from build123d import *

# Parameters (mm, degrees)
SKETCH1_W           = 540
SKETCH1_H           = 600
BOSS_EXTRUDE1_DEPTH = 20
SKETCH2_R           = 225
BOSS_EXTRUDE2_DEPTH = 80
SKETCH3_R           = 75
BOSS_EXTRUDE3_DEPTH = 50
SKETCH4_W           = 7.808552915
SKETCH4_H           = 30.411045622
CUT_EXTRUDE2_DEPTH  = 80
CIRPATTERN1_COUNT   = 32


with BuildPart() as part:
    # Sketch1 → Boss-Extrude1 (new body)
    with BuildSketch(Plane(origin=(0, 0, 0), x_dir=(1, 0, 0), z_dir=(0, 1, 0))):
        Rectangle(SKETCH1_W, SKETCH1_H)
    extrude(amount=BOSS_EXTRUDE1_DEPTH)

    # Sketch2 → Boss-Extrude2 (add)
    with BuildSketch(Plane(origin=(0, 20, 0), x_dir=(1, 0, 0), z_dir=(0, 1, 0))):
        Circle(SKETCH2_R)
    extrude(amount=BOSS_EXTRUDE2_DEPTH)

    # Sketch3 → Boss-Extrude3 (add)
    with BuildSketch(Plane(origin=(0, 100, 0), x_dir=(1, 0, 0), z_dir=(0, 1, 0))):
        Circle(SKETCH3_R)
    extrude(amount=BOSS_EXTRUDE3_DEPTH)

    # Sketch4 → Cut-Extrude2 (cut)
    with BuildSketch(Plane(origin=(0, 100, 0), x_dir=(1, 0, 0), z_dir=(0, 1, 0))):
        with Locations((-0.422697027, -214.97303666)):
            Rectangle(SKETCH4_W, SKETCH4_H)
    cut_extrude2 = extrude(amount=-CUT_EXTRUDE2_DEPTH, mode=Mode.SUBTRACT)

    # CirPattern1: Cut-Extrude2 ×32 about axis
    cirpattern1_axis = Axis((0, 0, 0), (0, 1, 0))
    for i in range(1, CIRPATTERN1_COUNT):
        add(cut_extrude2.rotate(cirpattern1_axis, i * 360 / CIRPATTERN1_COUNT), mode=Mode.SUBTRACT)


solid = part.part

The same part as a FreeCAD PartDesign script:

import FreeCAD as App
import Part
import Sketcher

V = App.Vector


def add_polygon(sketch, points):
    """Adds a closed chain of lines whose ends are joined by coincident constraints."""
    first, n = sketch.GeometryCount, len(points)
    for a, b in zip(points, points[1:] + points[:1]):
        sketch.addGeometry(Part.LineSegment(App.Vector(*a, 0), App.Vector(*b, 0)), False)
    for i in range(n):
        sketch.addConstraint(Sketcher.Constraint("Coincident", first + i, 2, first + (i + 1) % n, 1))

doc = App.newDocument("Part")
body = doc.addObject("PartDesign::Body", "Body")

sketch1 = body.newObject("Sketcher::SketchObject", "Sketch")
sketch1.AttachmentSupport = (doc.getObject("XZ_Plane"), [""])
sketch1.MapMode = "FlatFace"
add_polygon(sketch1, [(-270, -300), (-270, 300), (270, 300), (270, -300)])
sketch1.addConstraint([
    Sketcher.Constraint("Vertical", 0),
    Sketcher.Constraint("Horizontal", 1),
    Sketcher.Constraint("Vertical", 2),
    Sketcher.Constraint("Horizontal", 3),
    Sketcher.Constraint("Symmetric", 0, 2, 2, 2, -1, 1),
    Sketcher.Constraint("DistanceX", 1, 1, 1, 2, 540.0),
    Sketcher.Constraint("DistanceY", 0, 1, 0, 2, 600.0),
])
pad1 = body.newObject("PartDesign::Pad", "Pad")
pad1.Profile = sketch1
pad1.Length = 20
pad1.Reversed = True

sketch2 = body.newObject("Sketcher::SketchObject", "Sketch001")
sketch2.AttachmentSupport = (doc.getObject("XZ_Plane"), [""])
sketch2.MapMode = "FlatFace"
sketch2.AttachmentOffset = App.Placement(V(0, 0, -20), App.Rotation())
sketch2.addGeometry(Part.Circle(V(0, 0, 0), V(0, 0, 1), 225), False)
sketch2.addConstraint([
    Sketcher.Constraint("Coincident", 0, 3, -1, 1),
    Sketcher.Constraint("Diameter", 0, 450.0),
])
pad2 = body.newObject("PartDesign::Pad", "Pad001")
pad2.Profile = sketch2
pad2.Length = 80
pad2.Reversed = True

sketch3 = body.newObject("Sketcher::SketchObject", "Sketch002")
sketch3.AttachmentSupport = (doc.getObject("XZ_Plane"), [""])
sketch3.MapMode = "FlatFace"
sketch3.AttachmentOffset = App.Placement(V(0, 0, -100), App.Rotation())
sketch3.addGeometry(Part.Circle(V(0, 0, 0), V(0, 0, 1), 75), False)
sketch3.addConstraint([
    Sketcher.Constraint("Coincident", 0, 3, -1, 1),
    Sketcher.Constraint("Diameter", 0, 150.0),
])
pad3 = body.newObject("PartDesign::Pad", "Pad002")
pad3.Profile = sketch3
pad3.Length = 50
pad3.Reversed = True

sketch4 = body.newObject("Sketcher::SketchObject", "Sketch003")
sketch4.AttachmentSupport = (doc.getObject("XZ_Plane"), [""])
sketch4.MapMode = "FlatFace"
sketch4.AttachmentOffset = App.Placement(V(0, 0, -100), App.Rotation())
add_polygon(sketch4, [(-4, 200), (-4, 230), (3, 230), (3, 200)])
sketch4.addConstraint([
    Sketcher.Constraint("Vertical", 0),
    Sketcher.Constraint("Horizontal", 1),
    Sketcher.Constraint("Vertical", 2),
    Sketcher.Constraint("Horizontal", 3),
    Sketcher.Constraint("DistanceX", 1, 1, 1, 2, 7.808553),
    Sketcher.Constraint("DistanceY", 0, 1, 0, 2, 30.411046),
    Sketcher.Constraint("DistanceY", -1, 1, 0, 2, 230.178559),
    Sketcher.Constraint("DistanceX", -1, 1, 1, 2, 3.481579),
])
pocket1 = body.newObject("PartDesign::Pocket", "Pocket")
pocket1.Profile = sketch4
pocket1.Length = 80
pocket1.Reversed = True
doc.recompute()

polarpattern = body.newObject("PartDesign::PolarPattern", "PolarPattern")
polarpattern.Originals = [pocket1]
polarpattern.Axis = (doc.getObject("Y_Axis"), [""])
polarpattern.Angle = 360
polarpattern.Occurrences = 32
body.Tip = polarpattern

doc.recompute()
